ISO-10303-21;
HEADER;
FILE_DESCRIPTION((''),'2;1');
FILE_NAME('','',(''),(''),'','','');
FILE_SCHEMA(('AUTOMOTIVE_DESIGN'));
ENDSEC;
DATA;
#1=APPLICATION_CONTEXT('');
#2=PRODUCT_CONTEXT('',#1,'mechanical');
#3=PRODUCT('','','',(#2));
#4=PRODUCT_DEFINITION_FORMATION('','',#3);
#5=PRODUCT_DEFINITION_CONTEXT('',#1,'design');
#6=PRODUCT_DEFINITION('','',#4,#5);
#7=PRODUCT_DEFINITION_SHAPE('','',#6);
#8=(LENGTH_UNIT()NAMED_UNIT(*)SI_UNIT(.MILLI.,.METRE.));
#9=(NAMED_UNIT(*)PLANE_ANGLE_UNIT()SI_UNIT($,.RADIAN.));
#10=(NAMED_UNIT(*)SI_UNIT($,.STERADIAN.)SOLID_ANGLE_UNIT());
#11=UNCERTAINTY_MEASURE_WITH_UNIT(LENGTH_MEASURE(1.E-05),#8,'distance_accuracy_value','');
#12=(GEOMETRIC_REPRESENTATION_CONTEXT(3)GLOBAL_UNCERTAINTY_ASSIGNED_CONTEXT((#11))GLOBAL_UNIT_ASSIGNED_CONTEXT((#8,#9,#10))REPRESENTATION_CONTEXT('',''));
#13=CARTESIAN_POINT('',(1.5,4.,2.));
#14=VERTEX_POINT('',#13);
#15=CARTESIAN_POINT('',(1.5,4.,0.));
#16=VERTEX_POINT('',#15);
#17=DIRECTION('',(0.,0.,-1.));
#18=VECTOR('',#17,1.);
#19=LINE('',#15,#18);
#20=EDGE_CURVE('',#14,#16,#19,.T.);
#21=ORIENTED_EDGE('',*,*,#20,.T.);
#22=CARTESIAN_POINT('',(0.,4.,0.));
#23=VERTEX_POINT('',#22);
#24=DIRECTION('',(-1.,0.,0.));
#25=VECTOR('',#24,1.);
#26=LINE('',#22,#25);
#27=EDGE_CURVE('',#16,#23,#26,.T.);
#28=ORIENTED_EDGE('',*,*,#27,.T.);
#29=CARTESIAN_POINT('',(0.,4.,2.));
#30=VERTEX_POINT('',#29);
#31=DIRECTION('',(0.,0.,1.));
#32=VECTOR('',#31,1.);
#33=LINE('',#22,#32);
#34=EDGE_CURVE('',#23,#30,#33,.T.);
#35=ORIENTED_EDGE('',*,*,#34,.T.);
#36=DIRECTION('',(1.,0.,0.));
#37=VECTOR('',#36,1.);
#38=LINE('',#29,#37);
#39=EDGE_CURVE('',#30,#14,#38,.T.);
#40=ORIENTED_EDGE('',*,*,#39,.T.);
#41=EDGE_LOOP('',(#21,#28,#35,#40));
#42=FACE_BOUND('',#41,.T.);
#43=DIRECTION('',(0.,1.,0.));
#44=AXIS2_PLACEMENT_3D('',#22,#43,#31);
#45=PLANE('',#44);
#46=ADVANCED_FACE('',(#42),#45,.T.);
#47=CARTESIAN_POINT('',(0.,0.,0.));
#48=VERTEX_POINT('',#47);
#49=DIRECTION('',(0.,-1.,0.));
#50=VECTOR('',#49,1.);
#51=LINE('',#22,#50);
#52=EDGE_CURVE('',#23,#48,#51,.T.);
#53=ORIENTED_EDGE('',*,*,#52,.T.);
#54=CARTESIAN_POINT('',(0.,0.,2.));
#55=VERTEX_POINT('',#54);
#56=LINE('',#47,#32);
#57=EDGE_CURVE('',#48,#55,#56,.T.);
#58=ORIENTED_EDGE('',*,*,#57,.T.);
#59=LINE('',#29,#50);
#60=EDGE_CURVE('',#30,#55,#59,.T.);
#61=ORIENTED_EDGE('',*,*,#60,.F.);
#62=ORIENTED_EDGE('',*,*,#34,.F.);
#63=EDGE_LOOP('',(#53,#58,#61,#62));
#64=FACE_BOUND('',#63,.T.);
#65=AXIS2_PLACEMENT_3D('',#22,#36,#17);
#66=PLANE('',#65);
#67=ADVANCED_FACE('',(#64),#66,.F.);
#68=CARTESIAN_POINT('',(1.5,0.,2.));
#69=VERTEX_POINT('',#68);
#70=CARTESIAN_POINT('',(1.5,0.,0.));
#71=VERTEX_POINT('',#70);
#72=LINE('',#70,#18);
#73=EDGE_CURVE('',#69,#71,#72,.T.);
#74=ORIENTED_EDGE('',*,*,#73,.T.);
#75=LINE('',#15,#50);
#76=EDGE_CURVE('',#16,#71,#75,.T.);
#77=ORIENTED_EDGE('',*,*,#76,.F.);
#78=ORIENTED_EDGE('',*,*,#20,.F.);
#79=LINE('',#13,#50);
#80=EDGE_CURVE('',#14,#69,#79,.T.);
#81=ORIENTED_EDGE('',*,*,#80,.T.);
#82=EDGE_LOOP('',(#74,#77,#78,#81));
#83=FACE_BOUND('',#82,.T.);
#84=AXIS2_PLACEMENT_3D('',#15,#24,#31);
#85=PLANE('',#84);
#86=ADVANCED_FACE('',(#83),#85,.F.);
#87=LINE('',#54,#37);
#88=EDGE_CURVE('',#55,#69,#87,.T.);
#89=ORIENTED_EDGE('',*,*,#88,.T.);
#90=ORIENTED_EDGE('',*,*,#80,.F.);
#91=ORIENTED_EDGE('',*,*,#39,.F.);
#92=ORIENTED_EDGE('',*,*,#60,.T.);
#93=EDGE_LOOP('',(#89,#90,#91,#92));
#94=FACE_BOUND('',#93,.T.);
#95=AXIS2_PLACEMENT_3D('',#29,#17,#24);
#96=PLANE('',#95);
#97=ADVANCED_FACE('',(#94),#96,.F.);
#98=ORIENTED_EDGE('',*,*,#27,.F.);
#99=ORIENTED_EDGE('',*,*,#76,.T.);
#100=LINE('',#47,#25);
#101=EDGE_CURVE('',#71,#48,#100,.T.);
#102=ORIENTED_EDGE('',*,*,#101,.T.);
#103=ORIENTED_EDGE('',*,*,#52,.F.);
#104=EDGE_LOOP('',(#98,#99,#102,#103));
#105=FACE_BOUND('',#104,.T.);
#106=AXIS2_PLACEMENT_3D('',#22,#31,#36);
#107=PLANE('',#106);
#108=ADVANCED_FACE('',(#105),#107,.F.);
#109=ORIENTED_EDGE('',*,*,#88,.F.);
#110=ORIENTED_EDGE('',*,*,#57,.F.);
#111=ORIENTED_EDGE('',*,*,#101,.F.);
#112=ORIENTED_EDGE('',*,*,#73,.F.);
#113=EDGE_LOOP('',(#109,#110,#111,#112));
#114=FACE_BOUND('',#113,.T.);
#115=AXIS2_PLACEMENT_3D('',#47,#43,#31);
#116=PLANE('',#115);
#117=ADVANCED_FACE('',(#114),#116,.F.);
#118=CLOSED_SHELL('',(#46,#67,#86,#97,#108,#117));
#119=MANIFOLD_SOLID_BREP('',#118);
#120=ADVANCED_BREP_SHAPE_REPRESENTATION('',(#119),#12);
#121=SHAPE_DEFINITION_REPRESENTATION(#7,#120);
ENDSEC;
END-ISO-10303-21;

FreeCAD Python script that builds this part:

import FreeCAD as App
import Part
import Sketcher
from FreeCAD import Vector


def add_polygon(sketch, points):
    """Adds a closed chain of lines whose ends are joined by coincident constraints."""
    first, n = sketch.GeometryCount, len(points)
    for a, b in zip(points, points[1:] + points[:1]):
        sketch.addGeometry(Part.LineSegment(App.Vector(*a, 0), App.Vector(*b, 0)), False)
    for i in range(n):
        sketch.addConstraint(Sketcher.Constraint("Coincident", first + i, 2, first + (i + 1) % n, 1))

doc = App.newDocument("Part")
body = doc.addObject("PartDesign::Body", "Body")

sketch1 = body.newObject("Sketcher::SketchObject", "Sketch")
sketch1.AttachmentSupport = (doc.getObject("XZ_Plane"), [""])
sketch1.MapMode = "FlatFace"
add_polygon(sketch1, [(0, 0), (0, 2), (1.5, 2), (1.5, 0)])
sketch1.addConstraint([
    Sketcher.Constraint("Vertical", 0),
    Sketcher.Constraint("Horizontal", 1),
    Sketcher.Constraint("Vertical", 2),
    Sketcher.Constraint("Horizontal", 3),
    Sketcher.Constraint("Coincident", 3, 2, -1, 1),
    Sketcher.Constraint("DistanceY", 0, 1, 0, 2, 2.0),
    Sketcher.Constraint("DistanceX", 1, 1, 1, 2, 1.5),
])
pad1 = body.newObject("PartDesign::Pad", "Pad")
pad1.Profile = sketch1
pad1.Length = 4
pad1.Reversed = True

doc.recompute()
